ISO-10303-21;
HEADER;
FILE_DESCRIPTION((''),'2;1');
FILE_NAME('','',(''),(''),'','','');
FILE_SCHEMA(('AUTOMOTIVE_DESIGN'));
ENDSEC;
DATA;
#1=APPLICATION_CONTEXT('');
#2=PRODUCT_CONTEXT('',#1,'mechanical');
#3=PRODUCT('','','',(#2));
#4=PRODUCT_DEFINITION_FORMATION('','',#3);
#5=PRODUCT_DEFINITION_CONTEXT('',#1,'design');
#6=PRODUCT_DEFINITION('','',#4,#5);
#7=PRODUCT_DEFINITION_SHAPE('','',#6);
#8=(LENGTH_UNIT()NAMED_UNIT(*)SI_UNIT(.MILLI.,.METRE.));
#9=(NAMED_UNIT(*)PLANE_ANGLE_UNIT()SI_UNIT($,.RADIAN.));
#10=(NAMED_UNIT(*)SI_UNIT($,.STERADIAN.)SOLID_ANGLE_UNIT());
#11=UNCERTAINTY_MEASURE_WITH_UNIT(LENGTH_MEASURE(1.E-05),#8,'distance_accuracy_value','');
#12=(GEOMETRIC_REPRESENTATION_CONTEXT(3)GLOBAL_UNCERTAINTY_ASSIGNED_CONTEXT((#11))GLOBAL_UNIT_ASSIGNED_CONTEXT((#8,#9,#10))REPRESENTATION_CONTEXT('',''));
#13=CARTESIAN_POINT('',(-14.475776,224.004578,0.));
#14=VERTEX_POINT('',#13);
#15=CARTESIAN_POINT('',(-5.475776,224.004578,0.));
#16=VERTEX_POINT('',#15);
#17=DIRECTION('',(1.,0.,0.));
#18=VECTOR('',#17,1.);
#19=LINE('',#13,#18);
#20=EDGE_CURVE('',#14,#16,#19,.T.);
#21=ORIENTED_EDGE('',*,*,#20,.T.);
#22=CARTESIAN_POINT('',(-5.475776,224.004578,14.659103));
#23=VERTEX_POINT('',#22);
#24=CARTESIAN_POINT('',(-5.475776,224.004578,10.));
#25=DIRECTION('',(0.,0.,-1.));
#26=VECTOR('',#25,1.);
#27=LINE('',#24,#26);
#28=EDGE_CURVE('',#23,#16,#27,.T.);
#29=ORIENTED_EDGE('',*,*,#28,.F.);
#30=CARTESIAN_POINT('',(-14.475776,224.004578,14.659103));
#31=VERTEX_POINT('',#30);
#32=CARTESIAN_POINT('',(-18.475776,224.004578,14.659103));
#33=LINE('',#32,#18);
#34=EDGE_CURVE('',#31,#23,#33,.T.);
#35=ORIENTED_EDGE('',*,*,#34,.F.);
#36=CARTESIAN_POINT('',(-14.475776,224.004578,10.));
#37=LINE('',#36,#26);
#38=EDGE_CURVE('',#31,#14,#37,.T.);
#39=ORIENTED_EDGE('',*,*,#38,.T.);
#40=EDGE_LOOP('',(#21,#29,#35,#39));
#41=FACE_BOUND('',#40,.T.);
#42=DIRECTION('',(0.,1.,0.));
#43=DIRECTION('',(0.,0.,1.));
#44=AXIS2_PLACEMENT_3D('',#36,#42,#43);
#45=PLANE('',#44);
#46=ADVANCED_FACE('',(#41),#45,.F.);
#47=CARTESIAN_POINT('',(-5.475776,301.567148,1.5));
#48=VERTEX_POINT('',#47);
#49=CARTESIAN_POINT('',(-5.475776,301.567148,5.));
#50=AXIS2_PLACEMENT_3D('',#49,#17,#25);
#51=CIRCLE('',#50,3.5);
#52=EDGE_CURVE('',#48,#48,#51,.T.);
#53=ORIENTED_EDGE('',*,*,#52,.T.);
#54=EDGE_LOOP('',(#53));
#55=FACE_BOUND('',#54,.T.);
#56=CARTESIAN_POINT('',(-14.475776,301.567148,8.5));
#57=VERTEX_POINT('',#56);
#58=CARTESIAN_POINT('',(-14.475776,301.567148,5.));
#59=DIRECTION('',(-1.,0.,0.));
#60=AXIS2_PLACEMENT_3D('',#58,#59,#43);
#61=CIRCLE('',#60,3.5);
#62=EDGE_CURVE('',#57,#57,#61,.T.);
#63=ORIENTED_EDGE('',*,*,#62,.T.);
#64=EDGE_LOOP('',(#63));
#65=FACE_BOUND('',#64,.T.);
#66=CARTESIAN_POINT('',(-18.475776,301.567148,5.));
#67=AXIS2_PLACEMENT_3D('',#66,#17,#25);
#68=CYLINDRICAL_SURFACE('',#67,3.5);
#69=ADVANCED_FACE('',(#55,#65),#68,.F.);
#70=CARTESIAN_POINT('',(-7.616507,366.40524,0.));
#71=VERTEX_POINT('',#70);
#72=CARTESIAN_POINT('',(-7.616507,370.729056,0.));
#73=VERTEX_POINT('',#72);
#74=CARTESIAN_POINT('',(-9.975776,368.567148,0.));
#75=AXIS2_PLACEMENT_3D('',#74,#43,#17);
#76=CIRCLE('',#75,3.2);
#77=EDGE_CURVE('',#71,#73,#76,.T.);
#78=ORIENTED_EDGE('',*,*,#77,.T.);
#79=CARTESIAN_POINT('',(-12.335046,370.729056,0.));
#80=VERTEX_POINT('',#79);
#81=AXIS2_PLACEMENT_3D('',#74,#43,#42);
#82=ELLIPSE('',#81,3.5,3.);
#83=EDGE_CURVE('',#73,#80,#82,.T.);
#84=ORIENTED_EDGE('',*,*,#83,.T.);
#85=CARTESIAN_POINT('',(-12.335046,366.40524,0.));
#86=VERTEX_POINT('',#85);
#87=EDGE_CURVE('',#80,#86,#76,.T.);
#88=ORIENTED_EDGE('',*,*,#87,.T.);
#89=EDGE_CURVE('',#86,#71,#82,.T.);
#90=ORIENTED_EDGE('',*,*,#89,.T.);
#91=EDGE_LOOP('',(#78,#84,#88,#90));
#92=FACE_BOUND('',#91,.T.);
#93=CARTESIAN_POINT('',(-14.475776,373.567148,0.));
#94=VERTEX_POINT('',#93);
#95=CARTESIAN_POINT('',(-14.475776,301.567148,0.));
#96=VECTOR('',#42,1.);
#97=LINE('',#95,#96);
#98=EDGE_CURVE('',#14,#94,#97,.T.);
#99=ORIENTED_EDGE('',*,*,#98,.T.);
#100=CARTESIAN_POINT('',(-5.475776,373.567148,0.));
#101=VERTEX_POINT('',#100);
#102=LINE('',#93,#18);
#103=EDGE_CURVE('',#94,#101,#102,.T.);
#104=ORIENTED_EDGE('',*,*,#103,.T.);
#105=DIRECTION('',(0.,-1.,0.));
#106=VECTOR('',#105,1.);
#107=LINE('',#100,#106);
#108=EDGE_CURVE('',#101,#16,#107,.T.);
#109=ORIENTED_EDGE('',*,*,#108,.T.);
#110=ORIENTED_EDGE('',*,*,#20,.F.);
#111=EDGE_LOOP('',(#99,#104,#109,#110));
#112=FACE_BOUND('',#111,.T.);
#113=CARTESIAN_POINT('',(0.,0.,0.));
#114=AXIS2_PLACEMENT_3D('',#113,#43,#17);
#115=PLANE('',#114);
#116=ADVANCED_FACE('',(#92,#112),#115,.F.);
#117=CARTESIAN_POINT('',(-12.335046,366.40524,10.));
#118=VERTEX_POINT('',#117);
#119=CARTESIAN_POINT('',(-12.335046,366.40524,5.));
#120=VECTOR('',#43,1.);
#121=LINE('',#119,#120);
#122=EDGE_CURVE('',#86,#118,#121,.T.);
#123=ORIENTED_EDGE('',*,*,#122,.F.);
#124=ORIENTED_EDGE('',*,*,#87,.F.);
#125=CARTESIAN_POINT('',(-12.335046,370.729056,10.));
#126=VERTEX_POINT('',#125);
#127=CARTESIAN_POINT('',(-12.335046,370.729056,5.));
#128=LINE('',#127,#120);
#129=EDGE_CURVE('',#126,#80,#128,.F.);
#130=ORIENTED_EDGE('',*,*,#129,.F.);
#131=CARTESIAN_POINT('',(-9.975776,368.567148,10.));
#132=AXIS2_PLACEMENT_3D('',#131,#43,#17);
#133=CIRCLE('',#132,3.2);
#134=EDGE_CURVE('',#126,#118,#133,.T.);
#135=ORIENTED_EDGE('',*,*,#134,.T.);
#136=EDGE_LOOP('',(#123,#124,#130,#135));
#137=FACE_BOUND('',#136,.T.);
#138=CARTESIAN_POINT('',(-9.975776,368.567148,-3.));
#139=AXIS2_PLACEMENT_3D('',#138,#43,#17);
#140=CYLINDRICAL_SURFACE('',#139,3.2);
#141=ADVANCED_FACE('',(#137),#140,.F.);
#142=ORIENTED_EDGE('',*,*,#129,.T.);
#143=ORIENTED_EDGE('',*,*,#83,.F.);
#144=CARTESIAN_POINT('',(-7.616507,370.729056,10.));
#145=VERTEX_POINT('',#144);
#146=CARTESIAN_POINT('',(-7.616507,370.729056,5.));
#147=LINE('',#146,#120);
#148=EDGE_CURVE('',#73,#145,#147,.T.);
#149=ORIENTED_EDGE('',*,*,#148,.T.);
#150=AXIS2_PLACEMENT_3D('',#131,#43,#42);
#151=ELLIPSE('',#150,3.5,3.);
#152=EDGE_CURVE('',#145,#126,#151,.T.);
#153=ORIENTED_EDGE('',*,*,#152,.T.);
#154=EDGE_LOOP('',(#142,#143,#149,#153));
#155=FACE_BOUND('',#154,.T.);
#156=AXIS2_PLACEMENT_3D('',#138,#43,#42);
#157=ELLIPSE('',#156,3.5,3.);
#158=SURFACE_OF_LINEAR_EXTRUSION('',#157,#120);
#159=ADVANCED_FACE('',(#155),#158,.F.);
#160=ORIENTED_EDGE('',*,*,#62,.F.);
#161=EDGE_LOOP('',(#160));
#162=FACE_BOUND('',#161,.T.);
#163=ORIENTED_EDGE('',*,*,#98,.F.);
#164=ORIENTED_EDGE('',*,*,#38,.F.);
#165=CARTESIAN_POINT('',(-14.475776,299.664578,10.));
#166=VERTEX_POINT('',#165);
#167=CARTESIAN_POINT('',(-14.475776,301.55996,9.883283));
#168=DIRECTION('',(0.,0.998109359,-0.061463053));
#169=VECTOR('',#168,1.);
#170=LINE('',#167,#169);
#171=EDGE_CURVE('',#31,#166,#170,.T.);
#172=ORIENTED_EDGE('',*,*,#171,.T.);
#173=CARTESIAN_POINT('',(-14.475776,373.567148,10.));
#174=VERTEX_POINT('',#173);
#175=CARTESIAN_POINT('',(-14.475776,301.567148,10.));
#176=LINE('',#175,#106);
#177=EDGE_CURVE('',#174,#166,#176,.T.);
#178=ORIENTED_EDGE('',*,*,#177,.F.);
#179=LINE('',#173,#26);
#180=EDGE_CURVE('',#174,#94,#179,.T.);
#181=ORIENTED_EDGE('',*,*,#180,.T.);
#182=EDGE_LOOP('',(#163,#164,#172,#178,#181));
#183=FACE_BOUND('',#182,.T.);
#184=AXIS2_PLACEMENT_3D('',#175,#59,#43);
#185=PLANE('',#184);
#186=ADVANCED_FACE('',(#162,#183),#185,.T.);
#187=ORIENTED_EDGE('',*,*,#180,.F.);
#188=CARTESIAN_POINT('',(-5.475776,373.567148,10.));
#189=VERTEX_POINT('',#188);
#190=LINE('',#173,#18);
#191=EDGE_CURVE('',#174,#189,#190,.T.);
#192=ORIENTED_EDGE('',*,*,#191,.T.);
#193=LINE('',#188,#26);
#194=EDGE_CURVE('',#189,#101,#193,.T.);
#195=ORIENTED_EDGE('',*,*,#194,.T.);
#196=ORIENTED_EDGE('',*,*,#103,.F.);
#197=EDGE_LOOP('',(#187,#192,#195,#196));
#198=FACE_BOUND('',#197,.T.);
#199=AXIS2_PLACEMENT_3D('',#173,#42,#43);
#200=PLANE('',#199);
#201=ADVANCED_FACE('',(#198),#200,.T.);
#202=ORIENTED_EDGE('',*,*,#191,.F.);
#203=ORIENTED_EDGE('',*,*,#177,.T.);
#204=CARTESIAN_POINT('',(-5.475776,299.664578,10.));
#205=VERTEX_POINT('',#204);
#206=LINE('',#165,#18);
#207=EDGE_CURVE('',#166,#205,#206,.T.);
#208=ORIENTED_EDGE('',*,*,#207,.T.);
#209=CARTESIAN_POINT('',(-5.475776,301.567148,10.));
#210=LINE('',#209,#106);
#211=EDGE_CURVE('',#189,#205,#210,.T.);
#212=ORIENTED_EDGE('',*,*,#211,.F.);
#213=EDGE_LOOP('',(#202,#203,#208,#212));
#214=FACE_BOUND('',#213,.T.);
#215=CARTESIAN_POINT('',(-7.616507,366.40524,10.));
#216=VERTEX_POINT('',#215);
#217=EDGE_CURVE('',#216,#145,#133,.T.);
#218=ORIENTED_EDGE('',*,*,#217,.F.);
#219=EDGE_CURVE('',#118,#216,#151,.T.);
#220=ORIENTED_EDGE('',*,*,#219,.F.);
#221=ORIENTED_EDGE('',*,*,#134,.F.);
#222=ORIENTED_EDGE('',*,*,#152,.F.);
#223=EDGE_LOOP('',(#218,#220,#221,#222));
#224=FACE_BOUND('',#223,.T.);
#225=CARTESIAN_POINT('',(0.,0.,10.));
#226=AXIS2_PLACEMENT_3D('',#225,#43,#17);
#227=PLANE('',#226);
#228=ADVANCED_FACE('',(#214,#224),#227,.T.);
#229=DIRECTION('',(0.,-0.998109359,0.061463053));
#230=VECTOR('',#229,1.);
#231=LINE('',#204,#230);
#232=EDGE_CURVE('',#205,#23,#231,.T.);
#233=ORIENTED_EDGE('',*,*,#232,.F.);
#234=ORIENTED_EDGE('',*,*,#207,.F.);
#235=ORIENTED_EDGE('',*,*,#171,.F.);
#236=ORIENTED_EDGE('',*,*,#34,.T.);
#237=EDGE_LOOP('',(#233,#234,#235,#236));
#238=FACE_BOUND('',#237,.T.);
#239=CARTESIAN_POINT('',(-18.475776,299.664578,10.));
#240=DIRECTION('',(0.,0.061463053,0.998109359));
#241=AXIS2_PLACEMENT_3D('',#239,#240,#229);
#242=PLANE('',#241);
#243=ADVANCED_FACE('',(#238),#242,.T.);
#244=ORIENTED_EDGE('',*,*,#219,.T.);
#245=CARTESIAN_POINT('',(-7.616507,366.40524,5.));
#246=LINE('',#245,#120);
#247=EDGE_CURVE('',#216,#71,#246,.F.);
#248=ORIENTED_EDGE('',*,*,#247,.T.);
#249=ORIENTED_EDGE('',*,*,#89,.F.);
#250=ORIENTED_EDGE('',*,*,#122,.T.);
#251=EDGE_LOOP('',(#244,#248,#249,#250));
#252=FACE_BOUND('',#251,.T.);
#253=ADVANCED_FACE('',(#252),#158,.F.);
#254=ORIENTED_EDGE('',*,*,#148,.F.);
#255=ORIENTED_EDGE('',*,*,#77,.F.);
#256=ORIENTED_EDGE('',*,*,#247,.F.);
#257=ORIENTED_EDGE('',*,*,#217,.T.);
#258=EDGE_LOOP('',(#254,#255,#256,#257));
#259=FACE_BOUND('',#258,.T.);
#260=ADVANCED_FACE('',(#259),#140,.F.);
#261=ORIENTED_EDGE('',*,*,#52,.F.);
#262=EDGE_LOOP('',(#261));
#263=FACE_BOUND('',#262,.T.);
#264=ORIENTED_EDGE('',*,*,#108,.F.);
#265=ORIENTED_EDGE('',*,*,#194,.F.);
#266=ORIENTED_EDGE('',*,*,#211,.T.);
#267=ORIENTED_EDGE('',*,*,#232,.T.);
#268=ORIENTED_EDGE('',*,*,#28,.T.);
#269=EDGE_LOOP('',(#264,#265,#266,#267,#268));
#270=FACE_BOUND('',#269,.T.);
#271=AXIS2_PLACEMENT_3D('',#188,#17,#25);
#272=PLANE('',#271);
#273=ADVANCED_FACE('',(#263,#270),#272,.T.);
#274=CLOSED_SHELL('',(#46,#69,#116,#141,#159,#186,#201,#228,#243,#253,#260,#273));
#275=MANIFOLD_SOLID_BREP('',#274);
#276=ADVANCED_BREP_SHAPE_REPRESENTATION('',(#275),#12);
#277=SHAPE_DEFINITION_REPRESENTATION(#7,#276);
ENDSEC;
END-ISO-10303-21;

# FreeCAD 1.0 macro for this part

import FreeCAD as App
import Part
import Sketcher
from FreeCAD import Vector
Q = App.Units.Quantity


def add_polygon(sketch, points):
    """Adds a closed chain of lines whose ends are joined by coincident constraints."""
    first, n = sketch.GeometryCount, len(points)
    for a, b in zip(points, points[1:] + points[:1]):
        sketch.addGeometry(Part.LineSegment(App.Vector(*a, 0), App.Vector(*b, 0)), False)
    for i in range(n):
        sketch.addConstraint(Sketcher.Constraint("Coincident", first + i, 2, first + (i + 1) % n, 1))

doc = App.newDocument("Part")
body = doc.addObject("PartDesign::Body", "Body")

# Sketch on XY plane
sketch1 = doc.addObject("Sketcher::SketchObject", "Sketch")
body.addObject(sketch1)
sketch1.AttachmentSupport = (doc.XY_Plane, [""])
sketch1.MapMode = "FlatFace"
add_polygon(sketch1, [(-14, 374), (-14, 224), (-5, 224), (-5, 374)])  # lines 0-3
sketch1.addConstraint([
    Sketcher.Constraint("Vertical", 0),
    Sketcher.Constraint("Horizontal", 1),
    Sketcher.Constraint("Vertical", 2),
    Sketcher.Constraint("Horizontal", 3),
    Sketcher.Constraint("DistanceX", 1, 1, 1, 2, Q("9 mm")),
    Sketcher.Constraint("DistanceY", 0, 2, 0, 1, Q("149.56257 mm")),
    Sketcher.Constraint("DistanceY", -1, 1, 0, 2, Q("224.004578 mm")),
    Sketcher.Constraint("DistanceX", 0, 2, -1, 1, Q("14.475776 mm")),
])
pad1 = doc.addObject("PartDesign::Pad", "Pad")
body.addObject(pad1)
pad1.Profile = sketch1
pad1.Length = 10

# Sketch on XY plane
sketch2 = doc.addObject("Sketcher::SketchObject", "Sketch001")
body.addObject(sketch2)
sketch2.AttachmentSupport = (doc.XY_Plane, [""])
sketch2.MapMode = "FlatFace"
sketch2.AttachmentOffset = App.Placement(Vector(0, 0, 10), App.Rotation())
add_polygon(sketch2, [(-14, 300), (-14, 224), (-5, 224), (-5, 300)])  # lines 0-3
sketch2.addConstraint([
    Sketcher.Constraint("Vertical", 0),
    Sketcher.Constraint("Horizontal", 1),
    Sketcher.Constraint("Vertical", 2),
    Sketcher.Constraint("Horizontal", 3),
    Sketcher.Constraint("DistanceX", 1, 1, 1, 2, Q("9 mm")),
    Sketcher.Constraint("DistanceY", 0, 2, 0, 1, Q("75.66 mm")),
    Sketcher.Constraint("DistanceY", -1, 1, 0, 2, Q("224.004578 mm")),
    Sketcher.Constraint("DistanceX", 0, 2, -1, 1, Q("14.475776 mm")),
])
pad2 = doc.addObject("PartDesign::Pad", "Pad001")
body.addObject(pad2)
pad2.Profile = sketch2
pad2.Length = 7

# Sketch on YZ plane
sketch3 = doc.addObject("Sketcher::SketchObject", "Sketch002")
body.addObject(sketch3)
sketch3.AttachmentSupport = (doc.YZ_Plane, [""])
sketch3.MapMode = "FlatFace"
sketch3.AttachmentOffset = App.Placement(Vector(0, 0, -5.475776), App.Rotation())
add_polygon(sketch3, [(224, 14.7), (299.7, 10), (299.7, 17), (224, 17)])  # lines 0-3
sketch3.addConstraint([
    Sketcher.Constraint("Vertical", 1),
    Sketcher.Constraint("Horizontal", 2),
    Sketcher.Constraint("Vertical", 3),
    Sketcher.Constraint("DistanceY", 1, 1, 1, 2, Q("7 mm")),
    Sketcher.Constraint("DistanceY", -1, 1, 0, 2, Q("10 mm")),
    Sketcher.Constraint("DistanceX", 2, 2, 2, 1, Q("75.66 mm")),
    Sketcher.Constraint("DistanceY", 3, 2, 3, 1, Q("2.340897 mm")),
    Sketcher.Constraint("DistanceX", -1, 1, 0, 2, Q("299.664578 mm")),
])
pocket1 = doc.addObject("PartDesign::Pocket", "Pocket")
body.addObject(pocket1)
pocket1.Profile = sketch3
pocket1.Length = 13

# Sketch on XY plane
sketch4 = doc.addObject("Sketcher::SketchObject", "Sketch003")
body.addObject(sketch4)
sketch4.AttachmentSupport = (doc.XY_Plane, [""])
sketch4.MapMode = "FlatFace"
sketch4.AttachmentOffset = App.Placement(Vector(0, 0, 10), App.Rotation())
sketch4.addGeometry(Part.Ellipse(Vector(-9.975776, 372.067148, 0), Vector(-12.975776, 368.567148, 0), Vector(-9.975776, 368.567148, 0)), False)
sketch4.addConstraint(Sketcher.Constraint("Block", 0))
pocket2 = doc.addObject("PartDesign::Pocket", "Pocket001")
body.addObject(pocket2)
pocket2.Profile = sketch4
pocket2.Length = 13

# Sketch on XY plane
sketch5 = doc.addObject("Sketcher::SketchObject", "Sketch004")
body.addObject(sketch5)
sketch5.AttachmentSupport = (doc.XY_Plane, [""])
sketch5.MapMode = "FlatFace"
sketch5.AttachmentOffset = App.Placement(Vector(0, 0, 10), App.Rotation())
sketch5.addGeometry(Part.Circle(Vector(-10, 368.6, 0), Vector(0, 0, 1), 3.2), False)
sketch5.addConstraint([
    Sketcher.Constraint("Diameter", 0, Q("6.4 mm")),
    Sketcher.Constraint("DistanceX", 0, 3, -1, 1, Q("9.975776 mm")),
    Sketcher.Constraint("DistanceY", -1, 1, 0, 3, Q("368.567148 mm")),
])
pocket3 = doc.addObject("PartDesign::Pocket", "Pocket002")
body.addObject(pocket3)
pocket3.Profile = sketch5
pocket3.Length = 13

# Sketch on YZ plane
sketch6 = doc.addObject("Sketcher::SketchObject", "Sketch005")
body.addObject(sketch6)
sketch6.AttachmentSupport = (doc.YZ_Plane, [""])
sketch6.MapMode = "FlatFace"
sketch6.AttachmentOffset = App.Placement(Vector(0, 0, -5.475776), App.Rotation())
sketch6.addGeometry(Part.Circle(Vector(301.6, 5, 0), Vector(0, 0, 1), 3.5), False)
sketch6.addConstraint([
    Sketcher.Constraint("Diameter", 0, Q("7 mm")),
    Sketcher.Constraint("DistanceY", -1, 1, 0, 3, Q("5 mm")),
    Sketcher.Constraint("DistanceX", -1, 1, 0, 3, Q("301.567148 mm")),
])
pocket4 = doc.addObject("PartDesign::Pocket", "Pocket003")
body.addObject(pocket4)
pocket4.Profile = sketch6
pocket4.Length = 13

doc.recompute()
